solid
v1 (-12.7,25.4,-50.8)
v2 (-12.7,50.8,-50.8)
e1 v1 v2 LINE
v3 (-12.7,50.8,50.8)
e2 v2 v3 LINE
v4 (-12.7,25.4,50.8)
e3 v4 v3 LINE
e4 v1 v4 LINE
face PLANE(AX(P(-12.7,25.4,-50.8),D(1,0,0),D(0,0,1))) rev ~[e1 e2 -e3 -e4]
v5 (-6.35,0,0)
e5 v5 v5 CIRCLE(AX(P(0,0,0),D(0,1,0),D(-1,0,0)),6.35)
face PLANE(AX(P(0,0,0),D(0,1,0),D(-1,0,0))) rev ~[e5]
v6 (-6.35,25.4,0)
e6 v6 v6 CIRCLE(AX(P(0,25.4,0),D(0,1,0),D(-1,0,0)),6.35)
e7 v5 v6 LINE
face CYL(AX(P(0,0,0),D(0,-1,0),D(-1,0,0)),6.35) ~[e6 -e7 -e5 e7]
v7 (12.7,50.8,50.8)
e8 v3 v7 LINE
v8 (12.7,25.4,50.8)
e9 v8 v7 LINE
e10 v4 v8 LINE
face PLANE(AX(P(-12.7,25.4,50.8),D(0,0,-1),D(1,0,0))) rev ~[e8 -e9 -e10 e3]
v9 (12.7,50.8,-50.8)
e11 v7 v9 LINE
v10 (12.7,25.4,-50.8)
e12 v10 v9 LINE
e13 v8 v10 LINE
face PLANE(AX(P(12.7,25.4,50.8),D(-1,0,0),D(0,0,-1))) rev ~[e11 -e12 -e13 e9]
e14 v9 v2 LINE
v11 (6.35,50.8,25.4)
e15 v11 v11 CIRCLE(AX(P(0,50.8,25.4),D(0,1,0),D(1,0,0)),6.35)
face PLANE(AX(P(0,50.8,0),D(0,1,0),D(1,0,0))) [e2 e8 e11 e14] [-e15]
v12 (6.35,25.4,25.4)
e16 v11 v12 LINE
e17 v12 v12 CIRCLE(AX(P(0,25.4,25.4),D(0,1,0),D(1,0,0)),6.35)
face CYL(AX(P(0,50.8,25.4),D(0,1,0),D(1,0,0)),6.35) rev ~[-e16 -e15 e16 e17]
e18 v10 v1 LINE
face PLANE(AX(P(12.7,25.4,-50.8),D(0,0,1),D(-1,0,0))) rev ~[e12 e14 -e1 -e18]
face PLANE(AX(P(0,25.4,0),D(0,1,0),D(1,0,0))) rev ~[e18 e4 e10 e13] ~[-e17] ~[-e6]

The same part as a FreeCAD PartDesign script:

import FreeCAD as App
import Part
import Sketcher
Q = App.Units.Quantity


def add_polygon(sketch, points):
    """Adds a closed chain of lines whose ends are joined by coincident constraints."""
    first, n = sketch.GeometryCount, len(points)
    for a, b in zip(points, points[1:] + points[:1]):
        sketch.addGeometry(Part.LineSegment(App.Vector(*a, 0), App.Vector(*b, 0)), False)
    for i in range(n):
        sketch.addConstraint(Sketcher.Constraint("Coincident", first + i, 2, first + (i + 1) % n, 1))

doc = App.newDocument("Part")
params = doc.addObject("Spreadsheet::Sheet", "Params")
for row, (alias, value) in enumerate([
    ("sketch1_diameter", "0.5 in"),
    ("pad1_length", "1 in"),
    ("sketch2_width", "1 in"),
    ("sketch2_height", "4 in"),
    ("pad2_length", "1 in"),
    ("sketch3_diameter", "0.5 in"),
], start=1):
    params.set(f"A{row}", alias)
    params.set(f"B{row}", "=" + value)
    params.setAlias(f"B{row}", alias)

body = doc.addObject("PartDesign::Body", "Body")

# Sketch on XZ plane
sketch1 = body.newObject("Sketcher::SketchObject", "Sketch")
sketch1.AttachmentSupport = (doc.getObject("XZ_Plane"), [""])
sketch1.MapMode = "FlatFace"
sketch1.addGeometry(Part.Circle(App.Vector(0, 0, 0), App.Vector(0, 0, 1), 6), False)
sketch1.addConstraint([
    Sketcher.Constraint("Coincident", 0, 3, -1, 1),
    Sketcher.Constraint("Diameter", 0, Q("0.5 in")),
])
sketch1.setExpression("Constraints[1]", "Params.sketch1_diameter")
pad1 = body.newObject("PartDesign::Pad", "Pad")
pad1.Profile = sketch1
pad1.setExpression("Length", "Params.pad1_length")
pad1.Reversed = True

# Sketch on XZ plane
sketch2 = body.newObject("Sketcher::SketchObject", "Sketch001")
sketch2.AttachmentSupport = (doc.getObject("XZ_Plane"), [""])
sketch2.MapMode = "FlatFace"
sketch2.AttachmentOffset = App.Placement(App.Vector(0, 0, -1 * 25.4), App.Rotation())
add_polygon(sketch2, [(13, 51), (13, -51), (-13, -51), (-13, 51)])  # lines 0-3
sketch2.addConstraint([
    Sketcher.Constraint("Vertical", 0),
    Sketcher.Constraint("Horizontal", 1),
    Sketcher.Constraint("Vertical", 2),
    Sketcher.Constraint("Horizontal", 3),
    Sketcher.Constraint("Symmetric", 0, 2, 2, 2, -1, 1),
    Sketcher.Constraint("DistanceX", 1, 2, 1, 1, Q("1 in")),
    Sketcher.Constraint("DistanceY", 0, 2, 0, 1, Q("4 in")),
])
sketch2.setExpression("Constraints[9]", "Params.sketch2_width")
sketch2.setExpression("Constraints[10]", "Params.sketch2_height")
pad2 = body.newObject("PartDesign::Pad", "Pad001")
pad2.Profile = sketch2
pad2.setExpression("Length", "Params.pad2_length")
pad2.Reversed = True

# Sketch on XZ plane
sketch3 = body.newObject("Sketcher::SketchObject", "Sketch002")
sketch3.AttachmentSupport = (doc.getObject("XZ_Plane"), [""])
sketch3.MapMode = "FlatFace"
sketch3.AttachmentOffset = App.Placement(App.Vector(0, 0, -2 * 25.4), App.Rotation())
sketch3.addGeometry(Part.Circle(App.Vector(0, 25, 0), App.Vector(0, 0, 1), 6), False)
sketch3.addConstraint([
    Sketcher.Constraint("PointOnObject", 0, 3, -2),
    Sketcher.Constraint("Diameter", 0, Q("0.5 in")),
    Sketcher.Constraint("DistanceY", -1, 1, 0, 3, Q("1 in")),
])
sketch3.setExpression("Constraints[1]", "Params.sketch3_diameter")
pocket1 = body.newObject("PartDesign::Pocket", "Pocket")
pocket1.Profile = sketch3
pocket1.Type = "ThroughAll"
pocket1.Reversed = True

doc.recompute()
